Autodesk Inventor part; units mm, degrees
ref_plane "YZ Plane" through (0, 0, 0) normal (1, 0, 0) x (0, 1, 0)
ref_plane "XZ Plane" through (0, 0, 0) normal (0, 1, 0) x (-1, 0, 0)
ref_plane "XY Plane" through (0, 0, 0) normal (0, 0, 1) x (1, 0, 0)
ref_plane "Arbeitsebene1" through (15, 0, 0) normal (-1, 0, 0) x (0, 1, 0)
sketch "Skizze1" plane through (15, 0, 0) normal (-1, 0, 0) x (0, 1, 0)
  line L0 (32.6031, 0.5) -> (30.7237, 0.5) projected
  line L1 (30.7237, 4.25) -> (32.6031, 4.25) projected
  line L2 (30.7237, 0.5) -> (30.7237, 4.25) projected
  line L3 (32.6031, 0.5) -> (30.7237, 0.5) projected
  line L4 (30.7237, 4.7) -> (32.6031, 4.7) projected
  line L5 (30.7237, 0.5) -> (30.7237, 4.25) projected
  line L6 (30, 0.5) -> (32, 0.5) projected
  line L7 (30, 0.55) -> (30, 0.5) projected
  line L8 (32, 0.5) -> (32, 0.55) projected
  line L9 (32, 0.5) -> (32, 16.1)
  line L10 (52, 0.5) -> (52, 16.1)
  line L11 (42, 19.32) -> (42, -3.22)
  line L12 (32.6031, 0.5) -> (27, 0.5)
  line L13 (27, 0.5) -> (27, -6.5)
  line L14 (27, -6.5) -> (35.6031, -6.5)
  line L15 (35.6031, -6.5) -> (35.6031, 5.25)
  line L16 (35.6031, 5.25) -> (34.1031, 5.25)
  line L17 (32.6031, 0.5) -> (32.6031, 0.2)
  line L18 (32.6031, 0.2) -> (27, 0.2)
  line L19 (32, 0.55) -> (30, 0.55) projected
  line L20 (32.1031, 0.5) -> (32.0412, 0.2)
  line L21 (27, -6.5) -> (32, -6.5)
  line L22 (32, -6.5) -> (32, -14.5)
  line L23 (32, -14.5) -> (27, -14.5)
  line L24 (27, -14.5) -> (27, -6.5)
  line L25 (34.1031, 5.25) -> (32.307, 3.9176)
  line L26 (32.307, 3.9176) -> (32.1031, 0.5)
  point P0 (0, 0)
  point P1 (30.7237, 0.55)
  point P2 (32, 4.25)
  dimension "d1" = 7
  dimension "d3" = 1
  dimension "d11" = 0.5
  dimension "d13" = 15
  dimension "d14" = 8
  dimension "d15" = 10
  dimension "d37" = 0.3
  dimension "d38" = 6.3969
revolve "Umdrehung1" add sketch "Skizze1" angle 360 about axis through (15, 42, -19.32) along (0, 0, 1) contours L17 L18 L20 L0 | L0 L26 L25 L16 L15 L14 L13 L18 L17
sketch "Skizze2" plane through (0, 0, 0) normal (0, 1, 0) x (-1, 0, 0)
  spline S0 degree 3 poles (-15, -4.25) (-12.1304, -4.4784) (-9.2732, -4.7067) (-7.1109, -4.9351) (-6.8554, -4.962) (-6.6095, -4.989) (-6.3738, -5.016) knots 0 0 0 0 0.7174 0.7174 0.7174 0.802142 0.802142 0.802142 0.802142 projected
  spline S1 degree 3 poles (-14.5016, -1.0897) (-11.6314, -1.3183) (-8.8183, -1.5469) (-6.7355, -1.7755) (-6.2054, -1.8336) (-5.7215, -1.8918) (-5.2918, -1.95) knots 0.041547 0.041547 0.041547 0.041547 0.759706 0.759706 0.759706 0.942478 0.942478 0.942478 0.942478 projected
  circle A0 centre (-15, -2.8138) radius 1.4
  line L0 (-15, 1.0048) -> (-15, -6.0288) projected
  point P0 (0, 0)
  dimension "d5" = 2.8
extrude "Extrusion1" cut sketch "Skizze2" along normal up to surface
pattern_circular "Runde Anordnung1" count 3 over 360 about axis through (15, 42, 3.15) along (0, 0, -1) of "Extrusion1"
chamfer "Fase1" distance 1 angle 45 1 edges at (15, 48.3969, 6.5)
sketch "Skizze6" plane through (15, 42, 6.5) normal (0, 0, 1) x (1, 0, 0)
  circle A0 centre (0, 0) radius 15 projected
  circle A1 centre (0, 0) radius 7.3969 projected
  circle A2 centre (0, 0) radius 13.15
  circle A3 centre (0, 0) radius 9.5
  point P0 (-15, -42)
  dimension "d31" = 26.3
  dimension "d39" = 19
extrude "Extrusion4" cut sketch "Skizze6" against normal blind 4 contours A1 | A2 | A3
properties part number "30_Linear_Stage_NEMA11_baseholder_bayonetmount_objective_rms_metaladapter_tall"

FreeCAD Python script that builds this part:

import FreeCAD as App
import Part
import Sketcher
from FreeCAD import Vector
Q = App.Units.Quantity


def edges_at(feature, points):
    """Names of the edges that pass closest to the given points."""
    edges = feature.Shape.Edges
    near = lambda p: min(range(len(edges)), key=lambda i: edges[i].distToShape(Part.Vertex(*p))[0])
    return sorted({f"Edge{near(p) + 1}" for p in points})

doc = App.newDocument("Part")
body = doc.addObject("PartDesign::Body", "Body")

sketch1 = body.newObject("Sketcher::SketchObject", "Sketch")
sketch1.AttachmentSupport = (doc.getObject("YZ_Plane"), [""])
sketch1.MapMode = "FlatFace"
sketch1.AttachmentOffset = App.Placement(Vector(0, 0, 15), App.Rotation())
sketch1.addGeometry([
    Part.LineSegment(Vector(32.1, -0.5, 0), Vector(32.04, -0.2, 0)),
    Part.LineSegment(Vector(32.04, -0.2, 0), Vector(27, -0.2, 0)),
    Part.LineSegment(Vector(27, -0.2, 0), Vector(27, 6.5, 0)),
    Part.LineSegment(Vector(27, 6.5, 0), Vector(35.6, 6.5, 0)),
    Part.LineSegment(Vector(35.6, 6.5, 0), Vector(35.6, -5.25, 0)),
    Part.LineSegment(Vector(35.6, -5.25, 0), Vector(34.1, -5.25, 0)),
    Part.LineSegment(Vector(34.1, -5.25, 0), Vector(32.31, -3.92, 0)),
    Part.LineSegment(Vector(32.31, -3.92, 0), Vector(32.1, -0.5, 0)),
], False)
sketch1.addGeometry(Part.LineSegment(Vector(42, -5.25, 0), Vector(42, 6.5, 0)), True)
sketch1.addConstraint([
    Sketcher.Constraint("Coincident", 0, 2, 1, 1),
    Sketcher.Constraint("Coincident", 1, 2, 2, 1),
    Sketcher.Constraint("Coincident", 2, 2, 3, 1),
    Sketcher.Constraint("Coincident", 3, 2, 4, 1),
    Sketcher.Constraint("Coincident", 4, 2, 5, 1),
    Sketcher.Constraint("Coincident", 5, 2, 6, 1),
    Sketcher.Constraint("Coincident", 6, 2, 7, 1),
    Sketcher.Constraint("Coincident", 7, 2, 0, 1),
    Sketcher.Constraint("Horizontal", 1),
    Sketcher.Constraint("Vertical", 2),
    Sketcher.Constraint("Horizontal", 3),
    Sketcher.Constraint("Vertical", 4),
    Sketcher.Constraint("Horizontal", 5),
    Sketcher.Constraint("Vertical", 8),
    Sketcher.Constraint("Horizontal", 5, 2, 8, 1),
    Sketcher.Constraint("Horizontal", 3, 2, 8, 2),
    Sketcher.Constraint("DistanceY", 7, 2, 8, 2, Q("7 mm")),
    Sketcher.Constraint("DistanceY", 7, 2, -1, 1, Q("0.5 mm")),
    Sketcher.Constraint("DistanceY", 7, 2, 0, 2, Q("0.3 mm")),
    Sketcher.Constraint("DistanceX", 5, 2, 5, 1, Q("1.5 mm")),
    Sketcher.Constraint("DistanceX", -1, 1, 1, 2, Q("27 mm")),
    Sketcher.Constraint("DistanceX", -1, 1, 8, 1, Q("42 mm")),
    Sketcher.Constraint("DistanceX", 7, 2, 5, 2, Q("2 mm")),
    Sketcher.Constraint("DistanceX", 4, 2, 8, 1, Q("6.397 mm")),
    Sketcher.Constraint("DistanceY", 4, 2, 4, 1, Q("11.75 mm")),
    Sketcher.Constraint("Angle", 6, Q("143.431 deg")),
    Sketcher.Constraint("DistanceX", 1, 2, 1, 1, Q("5.0412 mm")),
    Sketcher.Constraint("DistanceX", -1, 1, 6, 2, Q("32.307 mm")),
])
revolution = body.newObject("PartDesign::Revolution", "Revolution")
revolution.Profile = sketch1
revolution.ReferenceAxis = (sketch1, ["Axis0"])
revolution.Angle = 360

sketch2 = body.newObject("Sketcher::SketchObject", "Sketch001")
sketch2.AttachmentSupport = (doc.getObject("XZ_Plane"), [""])
sketch2.MapMode = "FlatFace"
sketch2.addGeometry(Part.Circle(Vector(15, -2.8, 0), Vector(0, 0, 1), 1.4), False)
sketch2.addConstraint([
    Sketcher.Constraint("Diameter", 0, Q("2.8 mm")),
    Sketcher.Constraint("DistanceX", -1, 1, 0, 3, Q("15 mm")),
    Sketcher.Constraint("DistanceY", 0, 3, -1, 1, Q("2.8138 mm")),
])
pocket1 = body.newObject("PartDesign::Pocket", "Pocket")
pocket1.Profile = sketch2
pocket1.Length = 35.7582
doc.recompute()

datumline = body.newObject("PartDesign::Line", "DatumLine")
datumline.Placement = App.Placement(Vector(15, 42, 0), App.Rotation(Vector(0, 0, 1), Vector(0, 0, 1)))
polarpattern = body.newObject("PartDesign::PolarPattern", "PolarPattern")
polarpattern.Originals = [pocket1]
polarpattern.Axis = (datumline, [""])
polarpattern.Angle = 360
polarpattern.Occurrences = 3
body.Tip = polarpattern
doc.recompute()

chamfer = body.newObject("PartDesign::Chamfer", "Chamfer")
chamfer.Base = (polarpattern, edges_at(polarpattern, [(15, 48.397, 6.5)]))
chamfer.Size = 1

sketch3 = body.newObject("Sketcher::SketchObject", "Sketch002")
sketch3.AttachmentSupport = (doc.getObject("XY_Plane"), [""])
sketch3.MapMode = "FlatFace"
sketch3.AttachmentOffset = App.Placement(Vector(0, 0, 6.5), App.Rotation())
sketch3.addGeometry(Part.Circle(Vector(15, 42, 0), Vector(0, 0, 1), 13), False)
sketch3.addConstraint([
    Sketcher.Constraint("Diameter", 0, Q("26.3 mm")),
    Sketcher.Constraint("DistanceX", -1, 1, 0, 3, Q("15 mm")),
    Sketcher.Constraint("DistanceY", -1, 1, 0, 3, Q("42 mm")),
])
pocket2 = body.newObject("PartDesign::Pocket", "Pocket001")
pocket2.Profile = sketch3
pocket2.Length = 4

doc.recompute()
